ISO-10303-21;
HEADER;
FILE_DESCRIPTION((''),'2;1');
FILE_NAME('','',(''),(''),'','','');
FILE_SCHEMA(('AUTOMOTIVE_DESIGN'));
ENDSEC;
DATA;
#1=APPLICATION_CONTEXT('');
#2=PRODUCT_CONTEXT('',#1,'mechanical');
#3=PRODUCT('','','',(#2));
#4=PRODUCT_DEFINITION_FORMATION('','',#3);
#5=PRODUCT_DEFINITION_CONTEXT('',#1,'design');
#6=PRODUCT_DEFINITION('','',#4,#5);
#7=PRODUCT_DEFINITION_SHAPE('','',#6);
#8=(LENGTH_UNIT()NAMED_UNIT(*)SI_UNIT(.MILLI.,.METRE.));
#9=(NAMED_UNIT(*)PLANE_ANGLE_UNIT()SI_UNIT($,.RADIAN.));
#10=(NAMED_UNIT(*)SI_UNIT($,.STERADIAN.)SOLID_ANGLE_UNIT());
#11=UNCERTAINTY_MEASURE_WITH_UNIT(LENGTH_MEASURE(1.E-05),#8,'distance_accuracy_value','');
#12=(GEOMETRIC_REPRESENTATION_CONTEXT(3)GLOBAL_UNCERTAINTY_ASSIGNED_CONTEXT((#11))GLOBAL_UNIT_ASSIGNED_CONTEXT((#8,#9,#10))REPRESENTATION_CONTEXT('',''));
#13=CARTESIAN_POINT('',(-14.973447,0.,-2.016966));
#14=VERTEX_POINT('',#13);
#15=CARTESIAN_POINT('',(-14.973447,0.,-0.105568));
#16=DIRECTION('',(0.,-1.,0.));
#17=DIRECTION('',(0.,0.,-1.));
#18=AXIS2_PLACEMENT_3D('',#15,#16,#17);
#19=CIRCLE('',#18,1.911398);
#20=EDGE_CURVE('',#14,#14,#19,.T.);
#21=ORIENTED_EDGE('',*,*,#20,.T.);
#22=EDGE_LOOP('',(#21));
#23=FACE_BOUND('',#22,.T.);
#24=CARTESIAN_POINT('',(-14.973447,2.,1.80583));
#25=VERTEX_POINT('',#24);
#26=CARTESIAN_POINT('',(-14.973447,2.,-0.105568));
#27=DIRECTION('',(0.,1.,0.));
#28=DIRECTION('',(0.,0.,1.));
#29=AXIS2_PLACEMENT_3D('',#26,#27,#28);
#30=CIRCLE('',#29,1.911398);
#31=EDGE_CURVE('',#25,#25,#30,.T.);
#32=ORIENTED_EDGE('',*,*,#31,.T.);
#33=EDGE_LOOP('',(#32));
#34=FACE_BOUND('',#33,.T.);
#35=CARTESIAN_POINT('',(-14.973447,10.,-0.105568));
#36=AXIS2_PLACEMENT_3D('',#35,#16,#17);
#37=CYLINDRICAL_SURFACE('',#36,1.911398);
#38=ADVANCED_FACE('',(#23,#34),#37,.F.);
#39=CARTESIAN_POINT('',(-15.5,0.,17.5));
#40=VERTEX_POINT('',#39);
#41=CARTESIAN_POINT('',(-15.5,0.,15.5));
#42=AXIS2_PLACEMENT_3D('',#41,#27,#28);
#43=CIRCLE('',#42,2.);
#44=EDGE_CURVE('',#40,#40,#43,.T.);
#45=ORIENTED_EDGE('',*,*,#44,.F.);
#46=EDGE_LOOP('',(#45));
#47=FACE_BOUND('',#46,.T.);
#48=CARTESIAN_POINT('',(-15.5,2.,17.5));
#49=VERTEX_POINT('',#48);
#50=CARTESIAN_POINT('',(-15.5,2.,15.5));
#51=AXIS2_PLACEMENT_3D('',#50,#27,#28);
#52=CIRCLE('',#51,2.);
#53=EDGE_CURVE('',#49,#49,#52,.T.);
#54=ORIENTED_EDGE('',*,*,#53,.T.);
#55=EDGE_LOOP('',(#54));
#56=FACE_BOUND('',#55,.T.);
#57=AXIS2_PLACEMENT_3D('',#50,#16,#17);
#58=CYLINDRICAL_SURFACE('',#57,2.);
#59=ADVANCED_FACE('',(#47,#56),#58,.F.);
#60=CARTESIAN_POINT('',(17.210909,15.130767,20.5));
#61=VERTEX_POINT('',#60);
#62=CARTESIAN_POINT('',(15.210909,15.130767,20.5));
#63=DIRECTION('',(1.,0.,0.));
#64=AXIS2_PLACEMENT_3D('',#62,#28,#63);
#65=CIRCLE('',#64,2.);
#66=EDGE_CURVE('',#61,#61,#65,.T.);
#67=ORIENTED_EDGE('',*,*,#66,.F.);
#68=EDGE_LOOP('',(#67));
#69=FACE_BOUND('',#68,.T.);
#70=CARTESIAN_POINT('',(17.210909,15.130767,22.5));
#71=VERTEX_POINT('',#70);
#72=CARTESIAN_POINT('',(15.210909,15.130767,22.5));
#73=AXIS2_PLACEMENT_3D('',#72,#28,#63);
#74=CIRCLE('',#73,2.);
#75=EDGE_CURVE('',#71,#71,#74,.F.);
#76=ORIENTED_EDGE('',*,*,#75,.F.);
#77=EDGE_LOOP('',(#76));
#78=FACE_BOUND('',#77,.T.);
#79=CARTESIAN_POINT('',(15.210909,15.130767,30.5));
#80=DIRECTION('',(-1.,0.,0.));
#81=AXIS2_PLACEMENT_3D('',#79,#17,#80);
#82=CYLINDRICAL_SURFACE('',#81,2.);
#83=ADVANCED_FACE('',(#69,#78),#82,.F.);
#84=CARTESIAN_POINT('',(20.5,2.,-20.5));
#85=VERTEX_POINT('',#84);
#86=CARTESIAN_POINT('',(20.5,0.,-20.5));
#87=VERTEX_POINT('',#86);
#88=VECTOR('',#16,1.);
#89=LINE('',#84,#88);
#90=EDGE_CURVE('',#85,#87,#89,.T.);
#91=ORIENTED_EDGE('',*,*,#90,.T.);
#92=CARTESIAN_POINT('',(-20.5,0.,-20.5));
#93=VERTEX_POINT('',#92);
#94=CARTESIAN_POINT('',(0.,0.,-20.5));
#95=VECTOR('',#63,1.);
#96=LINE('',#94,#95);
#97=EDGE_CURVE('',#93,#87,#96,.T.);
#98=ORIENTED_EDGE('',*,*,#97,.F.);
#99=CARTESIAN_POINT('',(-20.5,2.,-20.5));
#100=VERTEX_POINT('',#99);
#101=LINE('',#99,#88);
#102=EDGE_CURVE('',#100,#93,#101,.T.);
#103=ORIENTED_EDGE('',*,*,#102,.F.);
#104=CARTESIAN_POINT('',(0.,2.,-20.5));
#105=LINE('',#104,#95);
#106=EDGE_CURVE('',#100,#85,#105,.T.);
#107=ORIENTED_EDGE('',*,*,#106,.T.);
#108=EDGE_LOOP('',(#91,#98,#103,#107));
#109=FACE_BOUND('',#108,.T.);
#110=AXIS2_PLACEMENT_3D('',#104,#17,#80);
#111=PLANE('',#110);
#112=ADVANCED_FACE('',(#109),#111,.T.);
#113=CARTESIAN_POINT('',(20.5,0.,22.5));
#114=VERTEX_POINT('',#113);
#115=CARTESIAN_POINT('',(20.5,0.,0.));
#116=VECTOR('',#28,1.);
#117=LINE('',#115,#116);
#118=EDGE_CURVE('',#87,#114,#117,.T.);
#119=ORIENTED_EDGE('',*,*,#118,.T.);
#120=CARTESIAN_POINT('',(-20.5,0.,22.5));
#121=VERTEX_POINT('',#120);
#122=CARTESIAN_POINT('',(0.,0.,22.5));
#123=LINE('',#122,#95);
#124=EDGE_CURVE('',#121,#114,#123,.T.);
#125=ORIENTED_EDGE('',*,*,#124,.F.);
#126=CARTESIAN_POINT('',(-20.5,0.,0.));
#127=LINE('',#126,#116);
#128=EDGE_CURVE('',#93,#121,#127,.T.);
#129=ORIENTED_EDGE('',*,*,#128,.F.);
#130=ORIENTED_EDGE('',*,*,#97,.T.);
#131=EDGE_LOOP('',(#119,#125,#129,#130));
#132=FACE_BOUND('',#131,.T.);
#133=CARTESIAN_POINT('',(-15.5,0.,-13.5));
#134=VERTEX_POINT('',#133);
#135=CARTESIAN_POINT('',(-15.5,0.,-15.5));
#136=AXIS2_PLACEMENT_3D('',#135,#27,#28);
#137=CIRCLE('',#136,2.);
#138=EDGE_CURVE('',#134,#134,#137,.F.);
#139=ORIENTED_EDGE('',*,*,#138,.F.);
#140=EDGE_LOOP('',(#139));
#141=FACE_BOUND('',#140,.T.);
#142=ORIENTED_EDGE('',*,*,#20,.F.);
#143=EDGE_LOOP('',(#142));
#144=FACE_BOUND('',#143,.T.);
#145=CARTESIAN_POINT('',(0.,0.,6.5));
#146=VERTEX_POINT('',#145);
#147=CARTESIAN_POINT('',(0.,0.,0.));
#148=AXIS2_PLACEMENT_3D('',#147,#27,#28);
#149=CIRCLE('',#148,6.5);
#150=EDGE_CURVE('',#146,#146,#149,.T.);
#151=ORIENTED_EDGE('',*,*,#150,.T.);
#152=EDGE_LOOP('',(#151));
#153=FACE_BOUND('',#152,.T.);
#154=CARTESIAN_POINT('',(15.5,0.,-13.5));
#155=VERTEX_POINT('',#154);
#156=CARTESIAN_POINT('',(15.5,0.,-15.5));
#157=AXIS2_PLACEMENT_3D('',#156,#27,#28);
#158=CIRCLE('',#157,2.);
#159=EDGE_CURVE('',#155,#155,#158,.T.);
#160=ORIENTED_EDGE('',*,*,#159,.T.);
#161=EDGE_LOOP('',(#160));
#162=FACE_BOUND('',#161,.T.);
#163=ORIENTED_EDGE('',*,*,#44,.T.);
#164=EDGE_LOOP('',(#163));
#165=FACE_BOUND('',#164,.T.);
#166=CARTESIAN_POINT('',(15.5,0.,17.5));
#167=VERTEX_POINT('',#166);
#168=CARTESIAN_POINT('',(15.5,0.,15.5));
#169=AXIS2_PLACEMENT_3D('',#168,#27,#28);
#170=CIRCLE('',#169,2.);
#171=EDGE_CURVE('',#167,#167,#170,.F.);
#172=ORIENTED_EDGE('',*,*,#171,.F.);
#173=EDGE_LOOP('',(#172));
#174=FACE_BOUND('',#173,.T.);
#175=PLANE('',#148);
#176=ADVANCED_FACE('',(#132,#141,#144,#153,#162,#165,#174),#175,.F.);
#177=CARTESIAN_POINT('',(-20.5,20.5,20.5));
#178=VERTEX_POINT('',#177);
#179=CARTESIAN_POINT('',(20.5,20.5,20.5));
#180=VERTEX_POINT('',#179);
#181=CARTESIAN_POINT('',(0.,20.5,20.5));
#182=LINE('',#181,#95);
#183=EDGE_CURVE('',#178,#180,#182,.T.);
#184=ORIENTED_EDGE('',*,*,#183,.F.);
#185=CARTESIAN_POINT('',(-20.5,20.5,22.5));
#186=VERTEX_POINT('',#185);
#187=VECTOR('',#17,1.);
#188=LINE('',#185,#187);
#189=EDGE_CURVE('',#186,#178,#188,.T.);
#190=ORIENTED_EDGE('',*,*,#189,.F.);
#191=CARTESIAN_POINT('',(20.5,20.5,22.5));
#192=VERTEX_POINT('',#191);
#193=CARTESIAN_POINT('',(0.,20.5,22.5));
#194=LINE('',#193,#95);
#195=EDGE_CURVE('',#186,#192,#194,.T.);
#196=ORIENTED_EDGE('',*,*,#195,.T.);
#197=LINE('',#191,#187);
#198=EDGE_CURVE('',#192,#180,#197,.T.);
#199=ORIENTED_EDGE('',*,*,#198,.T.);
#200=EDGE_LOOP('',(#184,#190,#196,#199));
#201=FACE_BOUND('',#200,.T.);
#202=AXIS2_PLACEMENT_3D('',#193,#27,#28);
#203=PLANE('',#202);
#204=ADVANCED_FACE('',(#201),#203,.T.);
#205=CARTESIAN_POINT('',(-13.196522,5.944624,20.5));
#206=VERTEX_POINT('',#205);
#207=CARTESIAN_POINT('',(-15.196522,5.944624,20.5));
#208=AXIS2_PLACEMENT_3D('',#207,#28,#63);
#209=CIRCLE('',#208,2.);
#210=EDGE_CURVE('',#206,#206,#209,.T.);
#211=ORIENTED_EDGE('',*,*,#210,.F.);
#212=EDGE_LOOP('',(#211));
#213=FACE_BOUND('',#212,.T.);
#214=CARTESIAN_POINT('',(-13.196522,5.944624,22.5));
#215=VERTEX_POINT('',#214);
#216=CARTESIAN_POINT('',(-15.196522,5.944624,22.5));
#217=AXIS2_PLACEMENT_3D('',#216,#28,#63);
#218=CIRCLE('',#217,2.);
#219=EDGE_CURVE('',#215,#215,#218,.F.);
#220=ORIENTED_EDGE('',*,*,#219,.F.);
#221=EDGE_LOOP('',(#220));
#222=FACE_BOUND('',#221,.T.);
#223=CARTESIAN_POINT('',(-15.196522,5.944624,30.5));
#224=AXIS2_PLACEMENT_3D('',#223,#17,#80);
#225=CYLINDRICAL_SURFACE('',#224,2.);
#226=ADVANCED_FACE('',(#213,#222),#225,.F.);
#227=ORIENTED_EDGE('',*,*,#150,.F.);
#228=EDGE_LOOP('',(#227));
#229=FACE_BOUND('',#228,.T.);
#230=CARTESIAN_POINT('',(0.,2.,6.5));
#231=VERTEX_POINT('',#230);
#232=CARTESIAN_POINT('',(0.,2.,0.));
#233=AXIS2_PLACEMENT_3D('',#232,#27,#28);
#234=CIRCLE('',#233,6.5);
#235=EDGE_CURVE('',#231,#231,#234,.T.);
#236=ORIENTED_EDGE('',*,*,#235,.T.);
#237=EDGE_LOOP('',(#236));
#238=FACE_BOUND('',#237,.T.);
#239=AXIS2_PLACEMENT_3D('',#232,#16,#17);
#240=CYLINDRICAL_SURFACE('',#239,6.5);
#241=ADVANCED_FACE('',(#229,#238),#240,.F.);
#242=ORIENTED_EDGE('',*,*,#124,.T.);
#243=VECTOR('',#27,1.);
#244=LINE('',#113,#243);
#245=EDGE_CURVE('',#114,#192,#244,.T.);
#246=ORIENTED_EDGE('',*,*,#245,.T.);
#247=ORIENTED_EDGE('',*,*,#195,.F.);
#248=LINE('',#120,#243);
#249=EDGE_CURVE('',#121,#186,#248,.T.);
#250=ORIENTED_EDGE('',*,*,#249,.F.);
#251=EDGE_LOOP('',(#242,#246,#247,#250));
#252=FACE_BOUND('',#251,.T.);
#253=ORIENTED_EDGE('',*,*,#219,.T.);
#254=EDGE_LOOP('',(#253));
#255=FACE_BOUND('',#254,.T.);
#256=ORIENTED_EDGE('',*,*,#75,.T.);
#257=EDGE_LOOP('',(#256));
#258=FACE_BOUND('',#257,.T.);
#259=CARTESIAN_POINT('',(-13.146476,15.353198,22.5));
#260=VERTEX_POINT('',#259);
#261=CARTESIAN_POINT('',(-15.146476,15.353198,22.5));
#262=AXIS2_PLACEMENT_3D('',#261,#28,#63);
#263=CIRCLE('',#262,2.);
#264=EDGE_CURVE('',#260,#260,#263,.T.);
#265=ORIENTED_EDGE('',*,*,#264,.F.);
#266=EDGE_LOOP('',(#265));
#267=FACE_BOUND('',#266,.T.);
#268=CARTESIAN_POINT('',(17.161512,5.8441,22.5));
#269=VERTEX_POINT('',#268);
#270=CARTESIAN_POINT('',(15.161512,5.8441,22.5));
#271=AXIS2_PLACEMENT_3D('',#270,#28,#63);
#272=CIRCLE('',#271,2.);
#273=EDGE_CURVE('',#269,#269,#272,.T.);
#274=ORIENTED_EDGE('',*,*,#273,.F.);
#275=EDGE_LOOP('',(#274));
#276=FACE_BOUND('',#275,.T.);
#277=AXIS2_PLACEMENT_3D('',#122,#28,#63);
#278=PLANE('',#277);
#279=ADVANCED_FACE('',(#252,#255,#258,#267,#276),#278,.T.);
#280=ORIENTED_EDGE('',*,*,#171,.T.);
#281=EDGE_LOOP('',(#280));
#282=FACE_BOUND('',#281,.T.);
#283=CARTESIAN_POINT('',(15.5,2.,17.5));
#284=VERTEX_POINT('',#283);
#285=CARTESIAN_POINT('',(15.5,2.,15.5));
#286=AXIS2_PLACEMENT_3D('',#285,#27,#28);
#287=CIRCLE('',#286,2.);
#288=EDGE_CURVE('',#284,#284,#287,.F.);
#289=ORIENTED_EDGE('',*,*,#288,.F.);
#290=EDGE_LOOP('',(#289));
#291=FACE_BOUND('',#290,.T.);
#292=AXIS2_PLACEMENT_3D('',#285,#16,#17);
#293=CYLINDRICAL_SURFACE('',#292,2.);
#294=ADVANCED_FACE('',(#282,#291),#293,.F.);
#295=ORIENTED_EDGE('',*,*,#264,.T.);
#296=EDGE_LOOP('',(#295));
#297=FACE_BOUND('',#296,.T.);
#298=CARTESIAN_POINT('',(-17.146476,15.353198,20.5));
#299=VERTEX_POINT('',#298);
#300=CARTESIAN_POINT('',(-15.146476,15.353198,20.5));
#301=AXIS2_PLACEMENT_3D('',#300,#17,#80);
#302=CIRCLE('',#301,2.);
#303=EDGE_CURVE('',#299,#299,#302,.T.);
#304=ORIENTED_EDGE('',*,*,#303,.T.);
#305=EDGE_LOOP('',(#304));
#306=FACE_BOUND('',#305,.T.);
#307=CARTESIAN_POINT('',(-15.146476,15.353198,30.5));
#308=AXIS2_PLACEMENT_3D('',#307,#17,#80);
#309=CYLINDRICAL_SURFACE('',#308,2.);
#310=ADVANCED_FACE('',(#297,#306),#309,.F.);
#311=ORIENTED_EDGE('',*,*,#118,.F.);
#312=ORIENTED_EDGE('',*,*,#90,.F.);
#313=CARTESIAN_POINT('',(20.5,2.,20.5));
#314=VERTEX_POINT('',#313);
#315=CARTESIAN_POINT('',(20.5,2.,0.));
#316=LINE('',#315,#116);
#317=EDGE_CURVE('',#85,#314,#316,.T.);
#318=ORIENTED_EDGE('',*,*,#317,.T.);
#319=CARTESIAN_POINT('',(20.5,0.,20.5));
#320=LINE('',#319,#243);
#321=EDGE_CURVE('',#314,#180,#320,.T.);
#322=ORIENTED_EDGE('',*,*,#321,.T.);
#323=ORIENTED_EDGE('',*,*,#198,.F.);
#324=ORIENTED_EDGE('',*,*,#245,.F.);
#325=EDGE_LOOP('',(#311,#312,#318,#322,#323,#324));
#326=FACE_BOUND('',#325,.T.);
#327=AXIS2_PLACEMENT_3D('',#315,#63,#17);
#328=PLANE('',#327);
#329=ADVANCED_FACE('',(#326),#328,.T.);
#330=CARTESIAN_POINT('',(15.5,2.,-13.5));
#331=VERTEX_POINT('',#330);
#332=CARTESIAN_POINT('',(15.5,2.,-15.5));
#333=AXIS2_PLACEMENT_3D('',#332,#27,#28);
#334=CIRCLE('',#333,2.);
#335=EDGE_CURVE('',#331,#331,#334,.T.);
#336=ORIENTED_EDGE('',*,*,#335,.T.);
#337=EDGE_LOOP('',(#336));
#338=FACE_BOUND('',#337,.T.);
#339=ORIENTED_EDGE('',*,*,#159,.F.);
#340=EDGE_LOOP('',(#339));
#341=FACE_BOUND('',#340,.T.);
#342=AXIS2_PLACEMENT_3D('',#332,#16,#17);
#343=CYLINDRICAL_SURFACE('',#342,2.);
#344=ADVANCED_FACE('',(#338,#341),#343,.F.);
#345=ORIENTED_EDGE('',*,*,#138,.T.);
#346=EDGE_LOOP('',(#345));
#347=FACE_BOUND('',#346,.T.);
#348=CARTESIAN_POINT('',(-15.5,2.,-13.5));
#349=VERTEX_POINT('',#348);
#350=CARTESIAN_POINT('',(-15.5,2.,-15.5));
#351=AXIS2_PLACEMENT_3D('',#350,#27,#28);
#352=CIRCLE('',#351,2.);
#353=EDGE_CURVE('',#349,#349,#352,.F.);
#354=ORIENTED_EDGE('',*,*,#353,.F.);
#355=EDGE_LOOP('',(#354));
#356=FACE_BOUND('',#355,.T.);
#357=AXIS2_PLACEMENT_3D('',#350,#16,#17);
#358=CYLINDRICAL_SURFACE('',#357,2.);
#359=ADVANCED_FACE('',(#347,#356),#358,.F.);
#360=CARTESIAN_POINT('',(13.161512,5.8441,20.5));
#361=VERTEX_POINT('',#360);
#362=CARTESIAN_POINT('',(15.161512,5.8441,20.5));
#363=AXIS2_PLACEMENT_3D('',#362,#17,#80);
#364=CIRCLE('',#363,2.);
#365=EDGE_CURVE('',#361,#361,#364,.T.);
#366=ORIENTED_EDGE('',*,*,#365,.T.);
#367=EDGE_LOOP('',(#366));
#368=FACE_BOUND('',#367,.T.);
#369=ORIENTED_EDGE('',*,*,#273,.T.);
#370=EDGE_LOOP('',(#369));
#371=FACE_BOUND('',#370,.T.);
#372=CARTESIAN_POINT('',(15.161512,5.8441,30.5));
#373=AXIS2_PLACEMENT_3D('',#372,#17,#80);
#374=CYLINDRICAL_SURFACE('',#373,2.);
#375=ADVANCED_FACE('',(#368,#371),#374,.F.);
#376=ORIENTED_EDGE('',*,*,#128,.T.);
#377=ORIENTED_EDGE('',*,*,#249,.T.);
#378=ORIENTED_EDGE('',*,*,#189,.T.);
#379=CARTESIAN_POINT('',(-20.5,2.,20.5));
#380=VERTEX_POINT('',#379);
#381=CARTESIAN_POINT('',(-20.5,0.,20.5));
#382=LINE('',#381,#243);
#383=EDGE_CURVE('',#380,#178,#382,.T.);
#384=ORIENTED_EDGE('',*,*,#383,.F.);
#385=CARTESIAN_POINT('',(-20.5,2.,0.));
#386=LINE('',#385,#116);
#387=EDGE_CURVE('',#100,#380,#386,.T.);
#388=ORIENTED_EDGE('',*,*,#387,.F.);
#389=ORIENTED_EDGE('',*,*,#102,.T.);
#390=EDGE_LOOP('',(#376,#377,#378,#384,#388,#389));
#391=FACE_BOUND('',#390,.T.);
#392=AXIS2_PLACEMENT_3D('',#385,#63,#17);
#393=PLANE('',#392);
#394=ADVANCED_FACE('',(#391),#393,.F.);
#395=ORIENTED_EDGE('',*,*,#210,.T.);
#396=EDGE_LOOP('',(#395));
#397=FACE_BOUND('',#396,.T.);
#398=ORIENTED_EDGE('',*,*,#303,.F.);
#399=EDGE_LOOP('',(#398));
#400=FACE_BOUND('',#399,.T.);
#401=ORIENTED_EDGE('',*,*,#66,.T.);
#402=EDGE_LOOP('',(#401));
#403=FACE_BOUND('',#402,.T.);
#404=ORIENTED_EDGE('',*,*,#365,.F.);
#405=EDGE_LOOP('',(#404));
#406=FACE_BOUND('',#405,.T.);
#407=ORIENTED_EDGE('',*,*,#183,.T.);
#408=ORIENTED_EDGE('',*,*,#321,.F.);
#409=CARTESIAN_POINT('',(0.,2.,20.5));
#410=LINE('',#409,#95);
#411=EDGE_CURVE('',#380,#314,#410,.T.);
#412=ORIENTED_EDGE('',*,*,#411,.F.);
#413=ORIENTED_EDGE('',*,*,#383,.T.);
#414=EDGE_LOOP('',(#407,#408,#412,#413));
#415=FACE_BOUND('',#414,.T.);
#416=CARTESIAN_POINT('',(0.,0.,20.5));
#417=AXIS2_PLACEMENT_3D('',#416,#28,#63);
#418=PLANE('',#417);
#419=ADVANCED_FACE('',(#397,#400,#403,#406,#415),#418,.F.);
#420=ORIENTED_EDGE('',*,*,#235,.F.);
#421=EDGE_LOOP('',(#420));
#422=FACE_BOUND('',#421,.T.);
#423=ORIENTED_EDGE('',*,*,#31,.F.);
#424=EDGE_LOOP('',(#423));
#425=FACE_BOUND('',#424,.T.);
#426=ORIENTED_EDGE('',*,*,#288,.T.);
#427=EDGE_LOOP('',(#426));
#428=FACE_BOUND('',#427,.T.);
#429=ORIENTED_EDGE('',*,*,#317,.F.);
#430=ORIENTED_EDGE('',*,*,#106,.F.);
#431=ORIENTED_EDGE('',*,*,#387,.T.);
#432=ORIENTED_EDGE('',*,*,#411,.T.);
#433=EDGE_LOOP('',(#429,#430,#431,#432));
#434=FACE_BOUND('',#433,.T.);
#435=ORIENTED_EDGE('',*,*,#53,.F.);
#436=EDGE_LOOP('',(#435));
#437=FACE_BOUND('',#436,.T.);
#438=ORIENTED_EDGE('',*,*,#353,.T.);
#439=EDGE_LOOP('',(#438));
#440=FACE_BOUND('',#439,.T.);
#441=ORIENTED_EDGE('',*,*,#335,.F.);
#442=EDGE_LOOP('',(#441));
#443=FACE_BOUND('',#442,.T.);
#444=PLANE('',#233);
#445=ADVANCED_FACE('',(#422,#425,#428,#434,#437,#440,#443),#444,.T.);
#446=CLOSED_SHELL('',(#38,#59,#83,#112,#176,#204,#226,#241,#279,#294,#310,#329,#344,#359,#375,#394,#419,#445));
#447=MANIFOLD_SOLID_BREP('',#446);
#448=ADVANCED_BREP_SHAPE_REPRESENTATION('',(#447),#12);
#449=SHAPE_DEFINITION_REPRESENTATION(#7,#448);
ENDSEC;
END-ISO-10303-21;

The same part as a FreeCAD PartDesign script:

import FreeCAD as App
import Part
import Sketcher
from FreeCAD import Vector
Q = App.Units.Quantity


def add_polygon(sketch, points):
    """Adds a closed chain of lines whose ends are joined by coincident constraints."""
    first, n = sketch.GeometryCount, len(points)
    for a, b in zip(points, points[1:] + points[:1]):
        sketch.addGeometry(Part.LineSegment(App.Vector(*a, 0), App.Vector(*b, 0)), False)
    for i in range(n):
        sketch.addConstraint(Sketcher.Constraint("Coincident", first + i, 2, first + (i + 1) % n, 1))

doc = App.newDocument("Part")
body = doc.addObject("PartDesign::Body", "Body")

sketch1 = body.newObject("Sketcher::SketchObject", "Sketch")
sketch1.AttachmentSupport = (doc.getObject("XZ_Plane"), [""])
sketch1.MapMode = "FlatFace"
add_polygon(sketch1, [(-20.5, -20.5), (-20.5, 20.5), (20.5, 20.5), (20.5, -20.5)])
sketch1.addGeometry(Part.Circle(Vector(-15.5, 15.5, 0), Vector(0, 0, 1), 2), False)
sketch1.addGeometry(Part.Circle(Vector(15.5, 15.5, 0), Vector(0, 0, 1), 2), False)
sketch1.addGeometry(Part.Circle(Vector(-15.5, -15.5, 0), Vector(0, 0, 1), 2), False)
sketch1.addGeometry(Part.Circle(Vector(0, 0, 0), Vector(0, 0, 1), 6.5), False)
sketch1.addGeometry(Part.Circle(Vector(15.5, -15.5, 0), Vector(0, 0, 1), 2), False)
sketch1.addConstraint(Sketcher.Constraint("Vertical", 0))
sketch1.addConstraint(Sketcher.Constraint("Horizontal", 1))
sketch1.addConstraint(Sketcher.Constraint("Vertical", 2))
sketch1.addConstraint(Sketcher.Constraint("Horizontal", 3))
sketch1.addConstraint(Sketcher.Constraint("Coincident", 7, 3, -1, 1))
sketch1.addConstraint(Sketcher.Constraint("Equal", 4, 5))
sketch1.addConstraint(Sketcher.Constraint("Equal", 5, 6))
sketch1.addConstraint(Sketcher.Constraint("Equal", 6, 8))
sketch1.addConstraint(Sketcher.Constraint("Symmetric", 5, 3, 6, 3, -1, 1))
sketch1.addConstraint(Sketcher.Constraint("Symmetric", 4, 3, 8, 3, -1, 1))
sketch1.addConstraint(Sketcher.Constraint("Symmetric", 0, 2, 2, 2, -1, 1))
sketch1.addConstraint(Sketcher.Constraint("Symmetric", 4, 3, 5, 3, -2))
sketch1.addConstraint(Sketcher.Constraint("Equal", 3, 0))
sketch1.addConstraint(Sketcher.Constraint("Diameter", 4, Q("4 mm")))
sketch1.addConstraint(Sketcher.Constraint("Diameter", 7, Q("13 mm")))
sketch1.addConstraint(Sketcher.Constraint("DistanceX", 1, 1, 1, 2, Q("41 mm")))
sketch1.addConstraint(Sketcher.Constraint("DistanceX", 4, 3, 5, 3, Q("31 mm")))
sketch1.addConstraint(Sketcher.Constraint("DistanceY", 6, 3, 4, 3, Q("31 mm")))
pad1 = body.newObject("PartDesign::Pad", "Pad")
pad1.Profile = sketch1
pad1.Length = 2
pad1.Reversed = True

sketch2 = body.newObject("Sketcher::SketchObject", "Sketch001")
sketch2.AttachmentSupport = (doc.getObject("XY_Plane"), [""])
sketch2.MapMode = "FlatFace"
sketch2.AttachmentOffset = App.Placement(Vector(0, 0, 20.5), App.Rotation())
add_polygon(sketch2, [(-20.5, 20.5), (-20.5, 0), (20.5, 0), (20.5, 20.5)])
sketch2.addConstraint(Sketcher.Constraint("Vertical", 0))
sketch2.addConstraint(Sketcher.Constraint("Horizontal", 1))
sketch2.addConstraint(Sketcher.Constraint("Vertical", 2))
sketch2.addConstraint(Sketcher.Constraint("Horizontal", 3))
sketch2.addConstraint(Sketcher.Constraint("Symmetric", 0, 2, 1, 2, -1, 1))
sketch2.addConstraint(Sketcher.Constraint("DistanceX", 1, 1, 1, 2, Q("41 mm")))
sketch2.addConstraint(Sketcher.Constraint("DistanceY", 0, 2, 0, 1, Q("20.5 mm")))
pad2 = body.newObject("PartDesign::Pad", "Pad001")
pad2.Profile = sketch2
pad2.Length = 2

sketch3 = body.newObject("Sketcher::SketchObject", "Sketch002")
sketch3.AttachmentSupport = (doc.getObject("XY_Plane"), [""])
sketch3.MapMode = "FlatFace"
sketch3.AttachmentOffset = App.Placement(Vector(0, 0, 20.5), App.Rotation())
sketch3.addGeometry(Part.Circle(Vector(15.161512, 5.8441, 0), Vector(0, 0, 1), 2), False)
sketch3.addGeometry(Part.Circle(Vector(-15.146476, 15.353198, 0), Vector(0, 0, 1), 2), False)
sketch3.addGeometry(Part.Circle(Vector(15.210909, 15.130767, 0), Vector(0, 0, 1), 2), False)
sketch3.addGeometry(Part.Circle(Vector(-15.196522, 5.944624, 0), Vector(0, 0, 1), 2), False)
sketch3.addConstraint(Sketcher.Constraint("Equal", 0, 1))
sketch3.addConstraint(Sketcher.Constraint("Equal", 1, 2))
sketch3.addConstraint(Sketcher.Constraint("Equal", 2, 3))
sketch3.addConstraint(Sketcher.Constraint("Diameter", 0, Q("4 mm")))
sketch3.addConstraint(Sketcher.Constraint("DistanceY", -1, 1, 0, 3, Q("5.8441 mm")))
sketch3.addConstraint(Sketcher.Constraint("DistanceY", -1, 1, 1, 3, Q("15.353198 mm")))
sketch3.addConstraint(Sketcher.Constraint("DistanceX", -1, 1, 0, 3, Q("15.161512 mm")))
sketch3.addConstraint(Sketcher.Constraint("DistanceX", -1, 1, 2, 3, Q("15.210909 mm")))
sketch3.addConstraint(Sketcher.Constraint("DistanceX", 3, 3, -1, 1, Q("15.196522 mm")))
sketch3.addConstraint(Sketcher.Constraint("DistanceY", 2, 3, 1, 3, Q("0.222431 mm")))
sketch3.addConstraint(Sketcher.Constraint("DistanceX", 1, 3, -1, 1, Q("15.146476 mm")))
sketch3.addConstraint(Sketcher.Constraint("DistanceY", -1, 1, 3, 3, Q("5.944624 mm")))
pocket1 = body.newObject("PartDesign::Pocket", "Pocket")
pocket1.Profile = sketch3
pocket1.Length = 10
pocket1.Reversed = True

sketch4 = body.newObject("Sketcher::SketchObject", "Sketch003")
sketch4.AttachmentSupport = (doc.getObject("XZ_Plane"), [""])
sketch4.MapMode = "FlatFace"
sketch4.addGeometry(Part.Circle(Vector(-14.973447, -0.105568, 0), Vector(0, 0, 1), 1.911398), False)
sketch4.addConstraint(Sketcher.Constraint("Diameter", 0, Q("3.822795 mm")))
sketch4.addConstraint(Sketcher.Constraint("DistanceY", 0, 3, -1, 1, Q("0.105568 mm")))
sketch4.addConstraint(Sketcher.Constraint("DistanceX", 0, 3, -1, 1, Q("14.973447 mm")))
pocket2 = body.newObject("PartDesign::Pocket", "Pocket001")
pocket2.Profile = sketch4
pocket2.Length = 10

doc.recompute()
